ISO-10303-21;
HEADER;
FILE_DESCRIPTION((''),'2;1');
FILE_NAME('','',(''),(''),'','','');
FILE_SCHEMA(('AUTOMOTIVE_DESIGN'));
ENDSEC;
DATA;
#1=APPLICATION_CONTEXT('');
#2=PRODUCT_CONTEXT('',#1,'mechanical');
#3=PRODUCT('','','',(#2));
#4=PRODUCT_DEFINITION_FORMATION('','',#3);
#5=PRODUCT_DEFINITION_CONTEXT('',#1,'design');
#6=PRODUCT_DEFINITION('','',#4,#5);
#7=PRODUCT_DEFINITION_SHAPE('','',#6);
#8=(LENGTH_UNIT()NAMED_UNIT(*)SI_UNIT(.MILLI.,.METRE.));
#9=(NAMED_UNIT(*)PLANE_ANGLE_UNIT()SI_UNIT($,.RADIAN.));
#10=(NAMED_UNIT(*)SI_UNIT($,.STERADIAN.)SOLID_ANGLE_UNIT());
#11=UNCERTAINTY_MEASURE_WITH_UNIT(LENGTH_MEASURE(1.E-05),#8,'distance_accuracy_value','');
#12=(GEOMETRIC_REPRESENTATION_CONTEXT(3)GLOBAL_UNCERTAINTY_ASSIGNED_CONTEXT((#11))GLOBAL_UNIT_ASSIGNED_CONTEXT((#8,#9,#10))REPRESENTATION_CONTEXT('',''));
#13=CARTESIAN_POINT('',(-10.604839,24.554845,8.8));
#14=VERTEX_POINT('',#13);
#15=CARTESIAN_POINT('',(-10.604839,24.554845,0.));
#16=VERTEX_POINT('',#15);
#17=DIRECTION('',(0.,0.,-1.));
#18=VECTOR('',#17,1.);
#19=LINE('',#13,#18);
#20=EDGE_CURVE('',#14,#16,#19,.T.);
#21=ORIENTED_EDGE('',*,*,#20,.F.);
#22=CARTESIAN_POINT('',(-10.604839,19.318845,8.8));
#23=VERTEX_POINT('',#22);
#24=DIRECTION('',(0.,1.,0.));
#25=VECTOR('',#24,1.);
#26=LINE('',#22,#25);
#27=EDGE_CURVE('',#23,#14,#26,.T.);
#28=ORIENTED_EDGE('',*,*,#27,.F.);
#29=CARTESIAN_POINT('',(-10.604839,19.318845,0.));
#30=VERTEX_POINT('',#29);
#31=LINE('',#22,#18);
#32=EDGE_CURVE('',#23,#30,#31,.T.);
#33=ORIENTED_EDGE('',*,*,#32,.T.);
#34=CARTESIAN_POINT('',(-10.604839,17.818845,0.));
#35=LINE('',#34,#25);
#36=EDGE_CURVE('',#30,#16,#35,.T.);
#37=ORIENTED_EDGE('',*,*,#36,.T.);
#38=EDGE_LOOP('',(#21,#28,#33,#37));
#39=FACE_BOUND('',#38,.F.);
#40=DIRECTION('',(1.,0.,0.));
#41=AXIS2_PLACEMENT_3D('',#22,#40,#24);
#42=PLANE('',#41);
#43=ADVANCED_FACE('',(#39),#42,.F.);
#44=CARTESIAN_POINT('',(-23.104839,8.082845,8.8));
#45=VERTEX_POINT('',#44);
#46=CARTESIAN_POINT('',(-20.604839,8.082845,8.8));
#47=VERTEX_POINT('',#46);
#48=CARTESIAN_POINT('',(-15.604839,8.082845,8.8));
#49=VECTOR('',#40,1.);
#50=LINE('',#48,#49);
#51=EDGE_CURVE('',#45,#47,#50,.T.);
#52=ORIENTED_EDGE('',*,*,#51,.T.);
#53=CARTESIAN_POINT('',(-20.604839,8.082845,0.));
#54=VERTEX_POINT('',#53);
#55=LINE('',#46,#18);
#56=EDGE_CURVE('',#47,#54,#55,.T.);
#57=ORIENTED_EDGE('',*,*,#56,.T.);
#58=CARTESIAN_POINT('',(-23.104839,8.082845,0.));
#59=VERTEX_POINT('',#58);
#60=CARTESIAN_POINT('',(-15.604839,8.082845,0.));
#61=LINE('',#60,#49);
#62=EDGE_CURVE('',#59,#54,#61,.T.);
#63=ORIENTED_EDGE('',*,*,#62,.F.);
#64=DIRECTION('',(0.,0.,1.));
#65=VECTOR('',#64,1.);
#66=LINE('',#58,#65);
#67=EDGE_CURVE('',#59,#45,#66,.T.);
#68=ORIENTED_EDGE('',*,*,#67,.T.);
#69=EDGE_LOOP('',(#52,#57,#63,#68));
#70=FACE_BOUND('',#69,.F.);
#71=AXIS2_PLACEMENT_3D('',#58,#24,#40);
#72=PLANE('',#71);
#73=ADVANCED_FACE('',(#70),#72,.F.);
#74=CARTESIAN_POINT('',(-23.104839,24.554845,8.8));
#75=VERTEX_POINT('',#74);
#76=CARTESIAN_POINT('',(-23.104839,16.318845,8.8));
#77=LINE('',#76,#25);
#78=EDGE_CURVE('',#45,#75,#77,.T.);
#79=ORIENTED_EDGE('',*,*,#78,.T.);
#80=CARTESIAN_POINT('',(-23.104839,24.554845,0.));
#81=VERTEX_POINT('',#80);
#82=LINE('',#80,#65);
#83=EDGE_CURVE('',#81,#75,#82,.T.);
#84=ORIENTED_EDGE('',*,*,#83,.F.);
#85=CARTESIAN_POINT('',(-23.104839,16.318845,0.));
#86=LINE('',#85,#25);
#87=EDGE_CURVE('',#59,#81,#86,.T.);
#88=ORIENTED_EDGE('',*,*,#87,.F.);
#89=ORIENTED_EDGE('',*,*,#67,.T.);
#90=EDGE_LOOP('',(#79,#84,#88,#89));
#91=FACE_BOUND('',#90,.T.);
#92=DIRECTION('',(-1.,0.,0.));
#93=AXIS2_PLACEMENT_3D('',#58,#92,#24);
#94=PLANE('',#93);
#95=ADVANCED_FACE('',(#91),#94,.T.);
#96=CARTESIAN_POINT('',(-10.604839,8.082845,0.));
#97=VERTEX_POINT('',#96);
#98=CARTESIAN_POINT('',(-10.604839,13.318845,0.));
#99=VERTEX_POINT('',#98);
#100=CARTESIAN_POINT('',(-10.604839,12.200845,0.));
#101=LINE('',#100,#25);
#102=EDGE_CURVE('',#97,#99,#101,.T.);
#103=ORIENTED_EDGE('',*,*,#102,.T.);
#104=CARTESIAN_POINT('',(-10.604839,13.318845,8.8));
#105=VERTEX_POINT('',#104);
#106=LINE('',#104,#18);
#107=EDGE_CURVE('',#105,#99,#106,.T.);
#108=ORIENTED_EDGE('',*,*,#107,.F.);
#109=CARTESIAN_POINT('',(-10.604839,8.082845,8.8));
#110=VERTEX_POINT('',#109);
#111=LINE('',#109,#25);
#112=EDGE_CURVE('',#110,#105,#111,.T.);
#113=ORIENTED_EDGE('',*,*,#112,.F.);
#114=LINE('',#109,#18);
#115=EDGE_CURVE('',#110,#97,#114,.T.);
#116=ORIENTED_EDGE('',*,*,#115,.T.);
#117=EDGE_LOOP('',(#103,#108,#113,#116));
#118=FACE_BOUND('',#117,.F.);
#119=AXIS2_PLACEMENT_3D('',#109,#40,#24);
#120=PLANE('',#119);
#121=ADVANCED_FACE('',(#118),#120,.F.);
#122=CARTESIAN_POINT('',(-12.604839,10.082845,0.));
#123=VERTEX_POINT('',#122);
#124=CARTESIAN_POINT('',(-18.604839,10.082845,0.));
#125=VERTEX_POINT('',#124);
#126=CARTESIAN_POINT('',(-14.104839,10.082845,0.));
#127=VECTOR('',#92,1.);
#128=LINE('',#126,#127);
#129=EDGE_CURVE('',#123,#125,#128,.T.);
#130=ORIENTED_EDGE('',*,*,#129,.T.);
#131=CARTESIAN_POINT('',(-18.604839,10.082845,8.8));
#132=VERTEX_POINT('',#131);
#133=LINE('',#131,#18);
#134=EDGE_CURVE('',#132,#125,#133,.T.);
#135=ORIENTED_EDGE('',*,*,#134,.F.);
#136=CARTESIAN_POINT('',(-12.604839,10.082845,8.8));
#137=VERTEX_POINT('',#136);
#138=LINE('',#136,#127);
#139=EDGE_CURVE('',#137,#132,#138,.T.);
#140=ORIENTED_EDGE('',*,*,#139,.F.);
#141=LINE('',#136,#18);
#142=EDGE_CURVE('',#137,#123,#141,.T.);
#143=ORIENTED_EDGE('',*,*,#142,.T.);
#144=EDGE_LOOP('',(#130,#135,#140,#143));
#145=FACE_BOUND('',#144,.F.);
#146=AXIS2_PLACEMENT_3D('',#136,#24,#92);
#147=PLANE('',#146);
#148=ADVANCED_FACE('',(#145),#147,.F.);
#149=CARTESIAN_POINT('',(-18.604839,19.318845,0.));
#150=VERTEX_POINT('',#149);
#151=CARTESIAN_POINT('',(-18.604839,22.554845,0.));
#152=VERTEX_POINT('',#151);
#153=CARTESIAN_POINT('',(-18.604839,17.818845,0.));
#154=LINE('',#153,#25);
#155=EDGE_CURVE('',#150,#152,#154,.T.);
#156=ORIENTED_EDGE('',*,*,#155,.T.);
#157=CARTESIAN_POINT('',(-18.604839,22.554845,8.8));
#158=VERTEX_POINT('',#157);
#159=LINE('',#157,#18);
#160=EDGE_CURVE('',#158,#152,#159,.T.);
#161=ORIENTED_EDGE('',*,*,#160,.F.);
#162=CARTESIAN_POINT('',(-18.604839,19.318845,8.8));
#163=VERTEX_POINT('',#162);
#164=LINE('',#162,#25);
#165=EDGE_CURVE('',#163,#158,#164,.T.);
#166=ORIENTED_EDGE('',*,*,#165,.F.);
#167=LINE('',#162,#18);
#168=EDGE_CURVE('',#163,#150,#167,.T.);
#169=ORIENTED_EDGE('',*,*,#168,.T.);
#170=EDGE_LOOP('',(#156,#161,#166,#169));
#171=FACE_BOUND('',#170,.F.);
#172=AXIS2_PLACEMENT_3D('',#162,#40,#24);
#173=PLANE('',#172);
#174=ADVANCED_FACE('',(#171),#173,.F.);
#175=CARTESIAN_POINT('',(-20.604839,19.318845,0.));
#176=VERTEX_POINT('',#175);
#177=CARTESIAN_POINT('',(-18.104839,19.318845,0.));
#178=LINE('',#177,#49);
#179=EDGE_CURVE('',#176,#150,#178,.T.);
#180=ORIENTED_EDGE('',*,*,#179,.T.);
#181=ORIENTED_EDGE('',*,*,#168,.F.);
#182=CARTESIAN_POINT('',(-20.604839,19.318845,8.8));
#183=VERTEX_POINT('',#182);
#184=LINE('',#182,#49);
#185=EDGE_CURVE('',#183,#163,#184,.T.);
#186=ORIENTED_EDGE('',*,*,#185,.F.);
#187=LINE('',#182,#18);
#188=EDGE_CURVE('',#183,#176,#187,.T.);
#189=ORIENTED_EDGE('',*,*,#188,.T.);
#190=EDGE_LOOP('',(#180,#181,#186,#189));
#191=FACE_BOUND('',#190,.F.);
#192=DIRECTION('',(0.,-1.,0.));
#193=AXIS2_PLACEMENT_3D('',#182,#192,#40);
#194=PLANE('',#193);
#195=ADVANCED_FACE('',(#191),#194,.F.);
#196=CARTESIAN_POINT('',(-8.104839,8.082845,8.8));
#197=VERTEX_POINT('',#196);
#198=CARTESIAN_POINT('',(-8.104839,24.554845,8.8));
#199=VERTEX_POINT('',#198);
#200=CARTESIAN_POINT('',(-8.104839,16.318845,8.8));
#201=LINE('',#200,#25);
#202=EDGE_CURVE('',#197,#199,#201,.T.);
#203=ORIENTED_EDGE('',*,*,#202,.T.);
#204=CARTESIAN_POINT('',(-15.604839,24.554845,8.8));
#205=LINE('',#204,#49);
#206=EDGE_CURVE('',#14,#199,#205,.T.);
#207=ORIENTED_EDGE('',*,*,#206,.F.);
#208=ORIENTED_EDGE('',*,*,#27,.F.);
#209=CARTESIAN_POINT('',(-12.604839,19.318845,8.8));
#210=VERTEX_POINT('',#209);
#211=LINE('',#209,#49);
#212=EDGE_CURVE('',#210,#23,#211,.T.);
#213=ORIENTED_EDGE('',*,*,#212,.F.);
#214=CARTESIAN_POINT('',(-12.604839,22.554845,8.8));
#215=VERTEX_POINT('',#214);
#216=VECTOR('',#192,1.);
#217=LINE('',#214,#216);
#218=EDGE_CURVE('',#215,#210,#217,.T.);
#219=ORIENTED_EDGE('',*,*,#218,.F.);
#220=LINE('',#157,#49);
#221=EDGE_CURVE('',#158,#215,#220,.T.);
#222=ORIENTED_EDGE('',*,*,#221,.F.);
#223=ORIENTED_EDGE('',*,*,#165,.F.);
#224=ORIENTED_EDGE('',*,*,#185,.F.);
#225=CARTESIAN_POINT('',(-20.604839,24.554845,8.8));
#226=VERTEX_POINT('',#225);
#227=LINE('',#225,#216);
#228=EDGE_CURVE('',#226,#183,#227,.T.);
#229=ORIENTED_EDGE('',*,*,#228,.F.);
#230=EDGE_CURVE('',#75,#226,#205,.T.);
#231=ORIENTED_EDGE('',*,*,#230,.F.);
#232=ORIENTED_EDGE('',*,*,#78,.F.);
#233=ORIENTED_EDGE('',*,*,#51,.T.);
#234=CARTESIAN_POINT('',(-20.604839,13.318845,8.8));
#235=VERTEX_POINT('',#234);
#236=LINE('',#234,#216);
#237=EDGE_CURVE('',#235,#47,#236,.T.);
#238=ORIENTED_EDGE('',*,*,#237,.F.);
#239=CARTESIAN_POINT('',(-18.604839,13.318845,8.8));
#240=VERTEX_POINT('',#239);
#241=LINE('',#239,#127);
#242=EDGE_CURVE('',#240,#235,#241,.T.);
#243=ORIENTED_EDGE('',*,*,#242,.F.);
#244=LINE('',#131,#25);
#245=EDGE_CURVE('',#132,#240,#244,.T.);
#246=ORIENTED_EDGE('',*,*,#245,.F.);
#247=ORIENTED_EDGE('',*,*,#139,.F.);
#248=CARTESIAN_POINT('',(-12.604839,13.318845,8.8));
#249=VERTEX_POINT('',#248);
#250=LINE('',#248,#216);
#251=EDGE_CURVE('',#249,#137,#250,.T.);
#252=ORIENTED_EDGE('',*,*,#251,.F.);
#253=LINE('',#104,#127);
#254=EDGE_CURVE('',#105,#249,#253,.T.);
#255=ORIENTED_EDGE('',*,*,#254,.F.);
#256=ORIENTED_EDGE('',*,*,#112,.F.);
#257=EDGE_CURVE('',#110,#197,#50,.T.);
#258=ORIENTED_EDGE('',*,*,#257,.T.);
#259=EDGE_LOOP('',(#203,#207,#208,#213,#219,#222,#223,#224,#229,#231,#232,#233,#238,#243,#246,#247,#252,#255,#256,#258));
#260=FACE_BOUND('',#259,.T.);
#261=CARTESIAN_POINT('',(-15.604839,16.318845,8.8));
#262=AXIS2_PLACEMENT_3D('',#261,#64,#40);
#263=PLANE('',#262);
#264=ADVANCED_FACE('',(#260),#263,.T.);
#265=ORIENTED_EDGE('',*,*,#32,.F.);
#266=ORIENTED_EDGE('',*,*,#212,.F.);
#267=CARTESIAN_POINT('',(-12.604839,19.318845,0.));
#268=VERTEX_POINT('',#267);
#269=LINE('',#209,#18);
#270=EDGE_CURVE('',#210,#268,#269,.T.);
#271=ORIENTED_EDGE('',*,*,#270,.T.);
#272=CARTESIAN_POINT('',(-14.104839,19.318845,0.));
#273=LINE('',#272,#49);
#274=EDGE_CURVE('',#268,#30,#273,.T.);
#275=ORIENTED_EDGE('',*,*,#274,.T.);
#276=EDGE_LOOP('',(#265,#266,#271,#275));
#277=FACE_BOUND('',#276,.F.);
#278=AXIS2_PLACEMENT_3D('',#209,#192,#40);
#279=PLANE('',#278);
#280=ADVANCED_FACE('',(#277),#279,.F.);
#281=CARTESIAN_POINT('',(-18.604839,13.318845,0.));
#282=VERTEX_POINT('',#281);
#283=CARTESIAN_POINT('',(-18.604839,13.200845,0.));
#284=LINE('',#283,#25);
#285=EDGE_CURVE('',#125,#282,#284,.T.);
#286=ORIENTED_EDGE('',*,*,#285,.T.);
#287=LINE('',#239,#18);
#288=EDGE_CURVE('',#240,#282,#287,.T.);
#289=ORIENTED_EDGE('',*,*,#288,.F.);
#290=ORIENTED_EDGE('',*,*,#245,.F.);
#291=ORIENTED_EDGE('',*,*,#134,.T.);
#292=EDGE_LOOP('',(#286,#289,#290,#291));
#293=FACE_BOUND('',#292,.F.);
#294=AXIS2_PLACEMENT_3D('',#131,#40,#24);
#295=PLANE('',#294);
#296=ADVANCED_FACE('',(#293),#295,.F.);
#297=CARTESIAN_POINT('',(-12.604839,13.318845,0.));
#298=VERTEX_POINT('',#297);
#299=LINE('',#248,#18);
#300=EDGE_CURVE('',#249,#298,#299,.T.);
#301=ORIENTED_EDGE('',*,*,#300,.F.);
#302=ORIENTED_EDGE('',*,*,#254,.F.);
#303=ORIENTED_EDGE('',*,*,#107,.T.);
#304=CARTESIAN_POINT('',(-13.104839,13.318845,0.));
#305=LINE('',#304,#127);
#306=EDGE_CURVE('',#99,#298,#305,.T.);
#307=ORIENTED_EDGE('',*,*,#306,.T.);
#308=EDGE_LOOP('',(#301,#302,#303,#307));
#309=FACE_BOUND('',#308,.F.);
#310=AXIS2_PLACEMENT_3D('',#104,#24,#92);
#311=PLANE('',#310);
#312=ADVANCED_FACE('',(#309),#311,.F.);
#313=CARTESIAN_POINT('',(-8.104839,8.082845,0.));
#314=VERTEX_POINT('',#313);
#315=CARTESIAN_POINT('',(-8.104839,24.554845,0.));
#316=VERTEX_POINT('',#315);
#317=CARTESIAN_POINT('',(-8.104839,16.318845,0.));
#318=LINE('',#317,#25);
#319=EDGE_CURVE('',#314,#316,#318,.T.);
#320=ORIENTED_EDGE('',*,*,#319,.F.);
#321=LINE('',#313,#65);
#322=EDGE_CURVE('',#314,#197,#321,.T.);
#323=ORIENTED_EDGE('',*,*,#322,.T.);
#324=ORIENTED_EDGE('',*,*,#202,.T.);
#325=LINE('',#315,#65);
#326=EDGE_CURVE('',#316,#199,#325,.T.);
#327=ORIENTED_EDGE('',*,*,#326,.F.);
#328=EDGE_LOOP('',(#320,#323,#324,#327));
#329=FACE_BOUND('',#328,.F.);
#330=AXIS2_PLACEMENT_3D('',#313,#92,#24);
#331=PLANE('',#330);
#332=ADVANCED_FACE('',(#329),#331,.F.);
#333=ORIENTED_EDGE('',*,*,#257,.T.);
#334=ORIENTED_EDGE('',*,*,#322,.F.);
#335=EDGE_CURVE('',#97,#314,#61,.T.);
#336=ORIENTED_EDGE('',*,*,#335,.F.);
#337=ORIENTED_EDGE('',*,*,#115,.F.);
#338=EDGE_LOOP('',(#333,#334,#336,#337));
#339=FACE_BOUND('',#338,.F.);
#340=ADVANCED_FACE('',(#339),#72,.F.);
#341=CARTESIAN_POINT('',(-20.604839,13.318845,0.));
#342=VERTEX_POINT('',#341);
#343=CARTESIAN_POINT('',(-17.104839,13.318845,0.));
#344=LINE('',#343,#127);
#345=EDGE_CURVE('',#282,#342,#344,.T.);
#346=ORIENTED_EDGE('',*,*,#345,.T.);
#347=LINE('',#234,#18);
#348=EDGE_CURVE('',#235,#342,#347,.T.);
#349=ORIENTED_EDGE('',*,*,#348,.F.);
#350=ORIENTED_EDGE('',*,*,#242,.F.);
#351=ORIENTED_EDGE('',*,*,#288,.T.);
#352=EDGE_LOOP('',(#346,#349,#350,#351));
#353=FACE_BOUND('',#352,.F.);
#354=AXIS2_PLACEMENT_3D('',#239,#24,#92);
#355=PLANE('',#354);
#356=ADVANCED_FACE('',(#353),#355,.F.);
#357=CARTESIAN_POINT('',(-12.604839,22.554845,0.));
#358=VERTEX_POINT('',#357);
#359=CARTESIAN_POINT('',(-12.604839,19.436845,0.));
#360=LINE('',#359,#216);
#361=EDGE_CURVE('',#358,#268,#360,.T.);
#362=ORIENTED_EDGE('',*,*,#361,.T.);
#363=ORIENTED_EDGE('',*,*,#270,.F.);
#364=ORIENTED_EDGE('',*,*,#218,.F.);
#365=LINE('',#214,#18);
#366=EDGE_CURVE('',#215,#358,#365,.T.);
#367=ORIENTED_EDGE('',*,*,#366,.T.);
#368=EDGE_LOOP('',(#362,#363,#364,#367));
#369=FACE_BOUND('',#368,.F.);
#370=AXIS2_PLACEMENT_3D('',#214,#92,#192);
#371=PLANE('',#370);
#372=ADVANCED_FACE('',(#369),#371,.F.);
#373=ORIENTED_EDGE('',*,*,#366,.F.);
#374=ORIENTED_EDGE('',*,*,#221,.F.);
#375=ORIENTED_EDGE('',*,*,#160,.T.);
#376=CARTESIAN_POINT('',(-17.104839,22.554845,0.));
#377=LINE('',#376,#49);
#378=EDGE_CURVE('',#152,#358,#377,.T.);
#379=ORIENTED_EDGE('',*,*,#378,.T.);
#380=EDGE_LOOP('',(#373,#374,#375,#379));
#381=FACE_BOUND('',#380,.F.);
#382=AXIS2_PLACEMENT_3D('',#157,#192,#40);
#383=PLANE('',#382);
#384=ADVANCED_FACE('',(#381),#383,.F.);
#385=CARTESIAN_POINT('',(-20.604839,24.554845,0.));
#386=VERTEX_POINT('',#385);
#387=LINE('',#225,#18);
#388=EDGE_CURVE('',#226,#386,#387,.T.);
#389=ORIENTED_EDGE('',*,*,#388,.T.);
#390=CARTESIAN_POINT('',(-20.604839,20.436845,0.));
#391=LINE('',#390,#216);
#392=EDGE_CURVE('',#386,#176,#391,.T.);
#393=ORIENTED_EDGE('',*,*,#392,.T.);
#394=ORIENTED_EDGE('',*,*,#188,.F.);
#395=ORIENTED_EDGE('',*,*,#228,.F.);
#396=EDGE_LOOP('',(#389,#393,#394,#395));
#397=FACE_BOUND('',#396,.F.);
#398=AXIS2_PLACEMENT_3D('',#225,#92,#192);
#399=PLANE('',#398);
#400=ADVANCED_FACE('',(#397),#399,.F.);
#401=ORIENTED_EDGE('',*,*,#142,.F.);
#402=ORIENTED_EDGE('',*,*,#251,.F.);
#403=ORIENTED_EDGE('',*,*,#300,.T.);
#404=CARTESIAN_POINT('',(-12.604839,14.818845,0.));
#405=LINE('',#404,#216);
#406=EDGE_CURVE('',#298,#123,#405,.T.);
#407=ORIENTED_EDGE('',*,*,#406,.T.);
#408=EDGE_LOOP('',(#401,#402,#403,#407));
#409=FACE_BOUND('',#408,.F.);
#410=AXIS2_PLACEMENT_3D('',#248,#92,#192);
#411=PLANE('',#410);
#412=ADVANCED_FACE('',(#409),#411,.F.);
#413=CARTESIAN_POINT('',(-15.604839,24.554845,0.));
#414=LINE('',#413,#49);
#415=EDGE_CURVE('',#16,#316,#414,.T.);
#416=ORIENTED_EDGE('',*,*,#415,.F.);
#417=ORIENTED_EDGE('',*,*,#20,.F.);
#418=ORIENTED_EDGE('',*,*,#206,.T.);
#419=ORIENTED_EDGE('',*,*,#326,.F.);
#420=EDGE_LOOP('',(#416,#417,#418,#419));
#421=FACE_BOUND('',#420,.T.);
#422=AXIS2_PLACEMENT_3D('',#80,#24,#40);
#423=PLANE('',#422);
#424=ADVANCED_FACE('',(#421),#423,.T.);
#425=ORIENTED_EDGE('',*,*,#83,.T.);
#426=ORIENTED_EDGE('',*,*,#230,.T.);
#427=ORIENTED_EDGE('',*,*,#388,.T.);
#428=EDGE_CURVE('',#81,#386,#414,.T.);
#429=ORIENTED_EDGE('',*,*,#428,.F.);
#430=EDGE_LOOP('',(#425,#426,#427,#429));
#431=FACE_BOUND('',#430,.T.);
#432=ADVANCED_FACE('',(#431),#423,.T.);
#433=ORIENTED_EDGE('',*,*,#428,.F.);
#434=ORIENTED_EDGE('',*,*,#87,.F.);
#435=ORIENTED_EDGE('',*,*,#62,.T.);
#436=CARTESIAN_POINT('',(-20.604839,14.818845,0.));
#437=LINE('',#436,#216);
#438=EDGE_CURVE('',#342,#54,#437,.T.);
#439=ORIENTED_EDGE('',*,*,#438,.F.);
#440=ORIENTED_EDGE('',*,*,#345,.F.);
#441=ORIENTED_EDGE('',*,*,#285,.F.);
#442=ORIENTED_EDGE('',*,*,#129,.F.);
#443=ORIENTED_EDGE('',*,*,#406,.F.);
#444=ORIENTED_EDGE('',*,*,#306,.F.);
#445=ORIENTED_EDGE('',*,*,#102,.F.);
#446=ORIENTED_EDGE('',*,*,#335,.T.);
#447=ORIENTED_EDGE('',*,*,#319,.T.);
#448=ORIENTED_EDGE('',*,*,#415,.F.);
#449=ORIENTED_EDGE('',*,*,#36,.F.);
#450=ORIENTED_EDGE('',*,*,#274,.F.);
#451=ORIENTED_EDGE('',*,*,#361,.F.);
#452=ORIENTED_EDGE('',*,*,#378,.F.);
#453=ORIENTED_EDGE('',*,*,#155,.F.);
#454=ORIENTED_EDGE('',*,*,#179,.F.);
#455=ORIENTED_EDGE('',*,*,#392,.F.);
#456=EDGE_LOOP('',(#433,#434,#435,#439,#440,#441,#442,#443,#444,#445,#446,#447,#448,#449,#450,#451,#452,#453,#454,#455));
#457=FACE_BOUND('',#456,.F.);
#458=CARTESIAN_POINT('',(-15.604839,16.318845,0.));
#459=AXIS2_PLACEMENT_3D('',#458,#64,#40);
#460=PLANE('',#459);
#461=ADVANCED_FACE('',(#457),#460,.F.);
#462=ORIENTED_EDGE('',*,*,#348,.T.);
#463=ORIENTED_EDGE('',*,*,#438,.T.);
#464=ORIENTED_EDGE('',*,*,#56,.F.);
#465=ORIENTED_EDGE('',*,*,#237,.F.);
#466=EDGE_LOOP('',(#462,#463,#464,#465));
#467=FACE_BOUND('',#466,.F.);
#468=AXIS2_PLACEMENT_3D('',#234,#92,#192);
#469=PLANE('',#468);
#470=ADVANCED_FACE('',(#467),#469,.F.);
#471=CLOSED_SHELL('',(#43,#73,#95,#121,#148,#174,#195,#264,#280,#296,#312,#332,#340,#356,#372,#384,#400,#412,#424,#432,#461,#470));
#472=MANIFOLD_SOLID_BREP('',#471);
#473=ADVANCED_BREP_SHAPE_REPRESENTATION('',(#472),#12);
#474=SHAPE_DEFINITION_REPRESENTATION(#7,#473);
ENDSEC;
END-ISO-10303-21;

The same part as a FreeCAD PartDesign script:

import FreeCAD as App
import Part
import Sketcher
from FreeCAD import Vector
Q = App.Units.Quantity


def add_polygon(sketch, points):
    """Adds a closed chain of lines whose ends are joined by coincident constraints."""
    first, n = sketch.GeometryCount, len(points)
    for a, b in zip(points, points[1:] + points[:1]):
        sketch.addGeometry(Part.LineSegment(App.Vector(*a, 0), App.Vector(*b, 0)), False)
    for i in range(n):
        sketch.addConstraint(Sketcher.Constraint("Coincident", first + i, 2, first + (i + 1) % n, 1))

doc = App.newDocument("Part")
body = doc.addObject("PartDesign::Body", "Body")

sketch1 = body.newObject("Sketcher::SketchObject", "Sketch")
sketch1.AttachmentSupport = (doc.getObject("XY_Plane"), [""])
sketch1.MapMode = "FlatFace"
add_polygon(sketch1, [(-23.104839, 24.554845), (-23.104839, 8.082845), (-8.104839, 8.082845), (-8.104839, 24.554845)])
sketch1.addConstraint([
    Sketcher.Constraint("Vertical", 0),
    Sketcher.Constraint("Horizontal", 1),
    Sketcher.Constraint("Vertical", 2),
    Sketcher.Constraint("Horizontal", 3),
    Sketcher.Constraint("DistanceX", 1, 1, 1, 2, Q("15 mm")),
    Sketcher.Constraint("DistanceY", 0, 2, 0, 1, Q("16.472 mm")),
    Sketcher.Constraint("DistanceX", 0, 2, -1, 1, Q("23.104839 mm")),
    Sketcher.Constraint("DistanceY", -1, 1, 0, 2, Q("8.082845 mm")),
])
pad1 = body.newObject("PartDesign::Pad", "Pad")
pad1.Profile = sketch1
pad1.Length = 8.8

sketch2 = body.newObject("Sketcher::SketchObject", "Sketch001")
sketch2.AttachmentSupport = (doc.getObject("XY_Plane"), [""])
sketch2.MapMode = "FlatFace"
sketch2.AttachmentOffset = App.Placement(Vector(0, 0, 8.8), App.Rotation())
add_polygon(sketch2, [(-20.604839, 13.318845), (-20.604839, 8.082845), (-10.604839, 8.082845), (-10.604839, 13.318845), (-12.604839, 13.318845), (-12.604839, 10.082845), (-18.604839, 10.082845), (-18.604839, 13.318845)])
add_polygon(sketch2, [(-10.604839, 24.554845), (-20.604839, 24.554845), (-20.604839, 19.318845), (-18.604839, 19.318845), (-18.604839, 22.554845), (-12.604839, 22.554845), (-12.604839, 19.318845), (-10.604839, 19.318845)])
sketch2.addConstraint([
    Sketcher.Constraint("Vertical", 0),
    Sketcher.Constraint("Horizontal", 1),
    Sketcher.Constraint("Vertical", 2),
    Sketcher.Constraint("Horizontal", 3),
    Sketcher.Constraint("Vertical", 4),
    Sketcher.Constraint("Horizontal", 5),
    Sketcher.Constraint("Vertical", 6),
    Sketcher.Constraint("Horizontal", 7),
    Sketcher.Constraint("Horizontal", 8),
    Sketcher.Constraint("Vertical", 9),
    Sketcher.Constraint("Horizontal", 10),
    Sketcher.Constraint("Vertical", 11),
    Sketcher.Constraint("Horizontal", 12),
    Sketcher.Constraint("Vertical", 13),
    Sketcher.Constraint("Horizontal", 14),
    Sketcher.Constraint("Vertical", 15),
    Sketcher.Constraint("Horizontal", 3, 2, 6, 2),
    Sketcher.Constraint("Horizontal", 10, 2, 13, 2),
    Sketcher.Constraint("Vertical", 7, 2, 8, 2),
    Sketcher.Constraint("Vertical", 6, 2, 10, 2),
    Sketcher.Constraint("Vertical", 4, 2, 12, 2),
    Sketcher.Constraint("Vertical", 2, 2, 14, 2),
    Sketcher.Constraint("Equal", 3, 7),
    Sketcher.Constraint("Equal", 2, 9),
    Sketcher.Constraint("Equal", 6, 11),
    Sketcher.Constraint("DistanceX", 1, 1, 1, 2, Q("10 mm")),
    Sketcher.Constraint("DistanceX", 3, 2, 3, 1, Q("2 mm")),
    Sketcher.Constraint("DistanceY", 1, 2, 4, 2, Q("2 mm")),
    Sketcher.Constraint("DistanceY", 7, 2, 9, 2, Q("6 mm")),
    Sketcher.Constraint("DistanceY", 0, 2, 0, 1, Q("5.236 mm")),
    Sketcher.Constraint("DistanceX", 0, 2, -1, 1, Q("20.604839 mm")),
    Sketcher.Constraint("DistanceY", -1, 1, 0, 2, Q("8.082845 mm")),
])
pocket1 = body.newObject("PartDesign::Pocket", "Pocket")
pocket1.Profile = sketch2
pocket1.Length = 25

doc.recompute()
